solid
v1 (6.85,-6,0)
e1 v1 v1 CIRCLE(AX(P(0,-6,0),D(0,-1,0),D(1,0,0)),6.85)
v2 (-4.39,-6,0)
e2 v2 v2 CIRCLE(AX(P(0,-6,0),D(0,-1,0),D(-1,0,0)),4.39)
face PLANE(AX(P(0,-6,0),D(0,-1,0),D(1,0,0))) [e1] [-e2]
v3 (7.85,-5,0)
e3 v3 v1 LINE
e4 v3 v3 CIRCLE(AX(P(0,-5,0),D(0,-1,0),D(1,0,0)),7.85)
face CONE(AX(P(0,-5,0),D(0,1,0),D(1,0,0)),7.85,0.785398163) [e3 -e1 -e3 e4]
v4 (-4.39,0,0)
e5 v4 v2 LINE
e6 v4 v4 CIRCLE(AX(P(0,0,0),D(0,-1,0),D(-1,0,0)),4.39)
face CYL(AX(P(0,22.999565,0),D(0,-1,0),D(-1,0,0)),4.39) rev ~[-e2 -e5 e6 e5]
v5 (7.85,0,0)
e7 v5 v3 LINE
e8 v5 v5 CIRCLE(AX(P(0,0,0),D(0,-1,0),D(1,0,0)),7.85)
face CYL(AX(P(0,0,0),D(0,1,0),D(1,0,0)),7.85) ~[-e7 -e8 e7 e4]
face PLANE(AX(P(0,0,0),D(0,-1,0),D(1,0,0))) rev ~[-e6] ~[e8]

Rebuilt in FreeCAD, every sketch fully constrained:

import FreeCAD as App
import Part
import Sketcher


def edges_at(feature, points):
    """Names of the edges that pass closest to the given points."""
    edges = feature.Shape.Edges
    near = lambda p: min(range(len(edges)), key=lambda i: edges[i].distToShape(Part.Vertex(*p))[0])
    return sorted({f"Edge{near(p) + 1}" for p in points})

doc = App.newDocument("Part")
body = doc.addObject("PartDesign::Body", "Body")

sketch1 = body.newObject("Sketcher::SketchObject", "Sketch")
sketch1.AttachmentSupport = (doc.getObject("XZ_Plane"), [""])
sketch1.MapMode = "FlatFace"
sketch1.addGeometry(Part.Circle(App.Vector(0, 0, 0), App.Vector(0, 0, 1), 7.85), False)
sketch1.addConstraint([
    Sketcher.Constraint("Coincident", 0, 3, -1, 1),
    Sketcher.Constraint("Diameter", 0, 15.7),
])
pad1 = body.newObject("PartDesign::Pad", "Pad")
pad1.Profile = sketch1
pad1.Length = 6

sketch2 = body.newObject("Sketcher::SketchObject", "Sketch001")
sketch2.AttachmentSupport = (doc.getObject("XZ_Plane"), [""])
sketch2.MapMode = "FlatFace"
sketch2.addGeometry(Part.Circle(App.Vector(0, 0, 0), App.Vector(0, 0, 1), 4.39), False)
sketch2.addConstraint([
    Sketcher.Constraint("Coincident", 0, 3, -1, 1),
    Sketcher.Constraint("Diameter", 0, 8.78),
])
doc.recompute()
hole = body.newObject("PartDesign::Hole", "Hole")
hole.Profile = sketch2
hole.ThreadType = "None"
hole.Diameter = 8.78
hole.DepthType = "ThroughAll"
hole.Reversed = True
doc.recompute()

chamfer = body.newObject("PartDesign::Chamfer", "Chamfer")
chamfer.Base = (hole, edges_at(hole, [(-7.85, -6, 0)]))
chamfer.Size = 1

doc.recompute()
